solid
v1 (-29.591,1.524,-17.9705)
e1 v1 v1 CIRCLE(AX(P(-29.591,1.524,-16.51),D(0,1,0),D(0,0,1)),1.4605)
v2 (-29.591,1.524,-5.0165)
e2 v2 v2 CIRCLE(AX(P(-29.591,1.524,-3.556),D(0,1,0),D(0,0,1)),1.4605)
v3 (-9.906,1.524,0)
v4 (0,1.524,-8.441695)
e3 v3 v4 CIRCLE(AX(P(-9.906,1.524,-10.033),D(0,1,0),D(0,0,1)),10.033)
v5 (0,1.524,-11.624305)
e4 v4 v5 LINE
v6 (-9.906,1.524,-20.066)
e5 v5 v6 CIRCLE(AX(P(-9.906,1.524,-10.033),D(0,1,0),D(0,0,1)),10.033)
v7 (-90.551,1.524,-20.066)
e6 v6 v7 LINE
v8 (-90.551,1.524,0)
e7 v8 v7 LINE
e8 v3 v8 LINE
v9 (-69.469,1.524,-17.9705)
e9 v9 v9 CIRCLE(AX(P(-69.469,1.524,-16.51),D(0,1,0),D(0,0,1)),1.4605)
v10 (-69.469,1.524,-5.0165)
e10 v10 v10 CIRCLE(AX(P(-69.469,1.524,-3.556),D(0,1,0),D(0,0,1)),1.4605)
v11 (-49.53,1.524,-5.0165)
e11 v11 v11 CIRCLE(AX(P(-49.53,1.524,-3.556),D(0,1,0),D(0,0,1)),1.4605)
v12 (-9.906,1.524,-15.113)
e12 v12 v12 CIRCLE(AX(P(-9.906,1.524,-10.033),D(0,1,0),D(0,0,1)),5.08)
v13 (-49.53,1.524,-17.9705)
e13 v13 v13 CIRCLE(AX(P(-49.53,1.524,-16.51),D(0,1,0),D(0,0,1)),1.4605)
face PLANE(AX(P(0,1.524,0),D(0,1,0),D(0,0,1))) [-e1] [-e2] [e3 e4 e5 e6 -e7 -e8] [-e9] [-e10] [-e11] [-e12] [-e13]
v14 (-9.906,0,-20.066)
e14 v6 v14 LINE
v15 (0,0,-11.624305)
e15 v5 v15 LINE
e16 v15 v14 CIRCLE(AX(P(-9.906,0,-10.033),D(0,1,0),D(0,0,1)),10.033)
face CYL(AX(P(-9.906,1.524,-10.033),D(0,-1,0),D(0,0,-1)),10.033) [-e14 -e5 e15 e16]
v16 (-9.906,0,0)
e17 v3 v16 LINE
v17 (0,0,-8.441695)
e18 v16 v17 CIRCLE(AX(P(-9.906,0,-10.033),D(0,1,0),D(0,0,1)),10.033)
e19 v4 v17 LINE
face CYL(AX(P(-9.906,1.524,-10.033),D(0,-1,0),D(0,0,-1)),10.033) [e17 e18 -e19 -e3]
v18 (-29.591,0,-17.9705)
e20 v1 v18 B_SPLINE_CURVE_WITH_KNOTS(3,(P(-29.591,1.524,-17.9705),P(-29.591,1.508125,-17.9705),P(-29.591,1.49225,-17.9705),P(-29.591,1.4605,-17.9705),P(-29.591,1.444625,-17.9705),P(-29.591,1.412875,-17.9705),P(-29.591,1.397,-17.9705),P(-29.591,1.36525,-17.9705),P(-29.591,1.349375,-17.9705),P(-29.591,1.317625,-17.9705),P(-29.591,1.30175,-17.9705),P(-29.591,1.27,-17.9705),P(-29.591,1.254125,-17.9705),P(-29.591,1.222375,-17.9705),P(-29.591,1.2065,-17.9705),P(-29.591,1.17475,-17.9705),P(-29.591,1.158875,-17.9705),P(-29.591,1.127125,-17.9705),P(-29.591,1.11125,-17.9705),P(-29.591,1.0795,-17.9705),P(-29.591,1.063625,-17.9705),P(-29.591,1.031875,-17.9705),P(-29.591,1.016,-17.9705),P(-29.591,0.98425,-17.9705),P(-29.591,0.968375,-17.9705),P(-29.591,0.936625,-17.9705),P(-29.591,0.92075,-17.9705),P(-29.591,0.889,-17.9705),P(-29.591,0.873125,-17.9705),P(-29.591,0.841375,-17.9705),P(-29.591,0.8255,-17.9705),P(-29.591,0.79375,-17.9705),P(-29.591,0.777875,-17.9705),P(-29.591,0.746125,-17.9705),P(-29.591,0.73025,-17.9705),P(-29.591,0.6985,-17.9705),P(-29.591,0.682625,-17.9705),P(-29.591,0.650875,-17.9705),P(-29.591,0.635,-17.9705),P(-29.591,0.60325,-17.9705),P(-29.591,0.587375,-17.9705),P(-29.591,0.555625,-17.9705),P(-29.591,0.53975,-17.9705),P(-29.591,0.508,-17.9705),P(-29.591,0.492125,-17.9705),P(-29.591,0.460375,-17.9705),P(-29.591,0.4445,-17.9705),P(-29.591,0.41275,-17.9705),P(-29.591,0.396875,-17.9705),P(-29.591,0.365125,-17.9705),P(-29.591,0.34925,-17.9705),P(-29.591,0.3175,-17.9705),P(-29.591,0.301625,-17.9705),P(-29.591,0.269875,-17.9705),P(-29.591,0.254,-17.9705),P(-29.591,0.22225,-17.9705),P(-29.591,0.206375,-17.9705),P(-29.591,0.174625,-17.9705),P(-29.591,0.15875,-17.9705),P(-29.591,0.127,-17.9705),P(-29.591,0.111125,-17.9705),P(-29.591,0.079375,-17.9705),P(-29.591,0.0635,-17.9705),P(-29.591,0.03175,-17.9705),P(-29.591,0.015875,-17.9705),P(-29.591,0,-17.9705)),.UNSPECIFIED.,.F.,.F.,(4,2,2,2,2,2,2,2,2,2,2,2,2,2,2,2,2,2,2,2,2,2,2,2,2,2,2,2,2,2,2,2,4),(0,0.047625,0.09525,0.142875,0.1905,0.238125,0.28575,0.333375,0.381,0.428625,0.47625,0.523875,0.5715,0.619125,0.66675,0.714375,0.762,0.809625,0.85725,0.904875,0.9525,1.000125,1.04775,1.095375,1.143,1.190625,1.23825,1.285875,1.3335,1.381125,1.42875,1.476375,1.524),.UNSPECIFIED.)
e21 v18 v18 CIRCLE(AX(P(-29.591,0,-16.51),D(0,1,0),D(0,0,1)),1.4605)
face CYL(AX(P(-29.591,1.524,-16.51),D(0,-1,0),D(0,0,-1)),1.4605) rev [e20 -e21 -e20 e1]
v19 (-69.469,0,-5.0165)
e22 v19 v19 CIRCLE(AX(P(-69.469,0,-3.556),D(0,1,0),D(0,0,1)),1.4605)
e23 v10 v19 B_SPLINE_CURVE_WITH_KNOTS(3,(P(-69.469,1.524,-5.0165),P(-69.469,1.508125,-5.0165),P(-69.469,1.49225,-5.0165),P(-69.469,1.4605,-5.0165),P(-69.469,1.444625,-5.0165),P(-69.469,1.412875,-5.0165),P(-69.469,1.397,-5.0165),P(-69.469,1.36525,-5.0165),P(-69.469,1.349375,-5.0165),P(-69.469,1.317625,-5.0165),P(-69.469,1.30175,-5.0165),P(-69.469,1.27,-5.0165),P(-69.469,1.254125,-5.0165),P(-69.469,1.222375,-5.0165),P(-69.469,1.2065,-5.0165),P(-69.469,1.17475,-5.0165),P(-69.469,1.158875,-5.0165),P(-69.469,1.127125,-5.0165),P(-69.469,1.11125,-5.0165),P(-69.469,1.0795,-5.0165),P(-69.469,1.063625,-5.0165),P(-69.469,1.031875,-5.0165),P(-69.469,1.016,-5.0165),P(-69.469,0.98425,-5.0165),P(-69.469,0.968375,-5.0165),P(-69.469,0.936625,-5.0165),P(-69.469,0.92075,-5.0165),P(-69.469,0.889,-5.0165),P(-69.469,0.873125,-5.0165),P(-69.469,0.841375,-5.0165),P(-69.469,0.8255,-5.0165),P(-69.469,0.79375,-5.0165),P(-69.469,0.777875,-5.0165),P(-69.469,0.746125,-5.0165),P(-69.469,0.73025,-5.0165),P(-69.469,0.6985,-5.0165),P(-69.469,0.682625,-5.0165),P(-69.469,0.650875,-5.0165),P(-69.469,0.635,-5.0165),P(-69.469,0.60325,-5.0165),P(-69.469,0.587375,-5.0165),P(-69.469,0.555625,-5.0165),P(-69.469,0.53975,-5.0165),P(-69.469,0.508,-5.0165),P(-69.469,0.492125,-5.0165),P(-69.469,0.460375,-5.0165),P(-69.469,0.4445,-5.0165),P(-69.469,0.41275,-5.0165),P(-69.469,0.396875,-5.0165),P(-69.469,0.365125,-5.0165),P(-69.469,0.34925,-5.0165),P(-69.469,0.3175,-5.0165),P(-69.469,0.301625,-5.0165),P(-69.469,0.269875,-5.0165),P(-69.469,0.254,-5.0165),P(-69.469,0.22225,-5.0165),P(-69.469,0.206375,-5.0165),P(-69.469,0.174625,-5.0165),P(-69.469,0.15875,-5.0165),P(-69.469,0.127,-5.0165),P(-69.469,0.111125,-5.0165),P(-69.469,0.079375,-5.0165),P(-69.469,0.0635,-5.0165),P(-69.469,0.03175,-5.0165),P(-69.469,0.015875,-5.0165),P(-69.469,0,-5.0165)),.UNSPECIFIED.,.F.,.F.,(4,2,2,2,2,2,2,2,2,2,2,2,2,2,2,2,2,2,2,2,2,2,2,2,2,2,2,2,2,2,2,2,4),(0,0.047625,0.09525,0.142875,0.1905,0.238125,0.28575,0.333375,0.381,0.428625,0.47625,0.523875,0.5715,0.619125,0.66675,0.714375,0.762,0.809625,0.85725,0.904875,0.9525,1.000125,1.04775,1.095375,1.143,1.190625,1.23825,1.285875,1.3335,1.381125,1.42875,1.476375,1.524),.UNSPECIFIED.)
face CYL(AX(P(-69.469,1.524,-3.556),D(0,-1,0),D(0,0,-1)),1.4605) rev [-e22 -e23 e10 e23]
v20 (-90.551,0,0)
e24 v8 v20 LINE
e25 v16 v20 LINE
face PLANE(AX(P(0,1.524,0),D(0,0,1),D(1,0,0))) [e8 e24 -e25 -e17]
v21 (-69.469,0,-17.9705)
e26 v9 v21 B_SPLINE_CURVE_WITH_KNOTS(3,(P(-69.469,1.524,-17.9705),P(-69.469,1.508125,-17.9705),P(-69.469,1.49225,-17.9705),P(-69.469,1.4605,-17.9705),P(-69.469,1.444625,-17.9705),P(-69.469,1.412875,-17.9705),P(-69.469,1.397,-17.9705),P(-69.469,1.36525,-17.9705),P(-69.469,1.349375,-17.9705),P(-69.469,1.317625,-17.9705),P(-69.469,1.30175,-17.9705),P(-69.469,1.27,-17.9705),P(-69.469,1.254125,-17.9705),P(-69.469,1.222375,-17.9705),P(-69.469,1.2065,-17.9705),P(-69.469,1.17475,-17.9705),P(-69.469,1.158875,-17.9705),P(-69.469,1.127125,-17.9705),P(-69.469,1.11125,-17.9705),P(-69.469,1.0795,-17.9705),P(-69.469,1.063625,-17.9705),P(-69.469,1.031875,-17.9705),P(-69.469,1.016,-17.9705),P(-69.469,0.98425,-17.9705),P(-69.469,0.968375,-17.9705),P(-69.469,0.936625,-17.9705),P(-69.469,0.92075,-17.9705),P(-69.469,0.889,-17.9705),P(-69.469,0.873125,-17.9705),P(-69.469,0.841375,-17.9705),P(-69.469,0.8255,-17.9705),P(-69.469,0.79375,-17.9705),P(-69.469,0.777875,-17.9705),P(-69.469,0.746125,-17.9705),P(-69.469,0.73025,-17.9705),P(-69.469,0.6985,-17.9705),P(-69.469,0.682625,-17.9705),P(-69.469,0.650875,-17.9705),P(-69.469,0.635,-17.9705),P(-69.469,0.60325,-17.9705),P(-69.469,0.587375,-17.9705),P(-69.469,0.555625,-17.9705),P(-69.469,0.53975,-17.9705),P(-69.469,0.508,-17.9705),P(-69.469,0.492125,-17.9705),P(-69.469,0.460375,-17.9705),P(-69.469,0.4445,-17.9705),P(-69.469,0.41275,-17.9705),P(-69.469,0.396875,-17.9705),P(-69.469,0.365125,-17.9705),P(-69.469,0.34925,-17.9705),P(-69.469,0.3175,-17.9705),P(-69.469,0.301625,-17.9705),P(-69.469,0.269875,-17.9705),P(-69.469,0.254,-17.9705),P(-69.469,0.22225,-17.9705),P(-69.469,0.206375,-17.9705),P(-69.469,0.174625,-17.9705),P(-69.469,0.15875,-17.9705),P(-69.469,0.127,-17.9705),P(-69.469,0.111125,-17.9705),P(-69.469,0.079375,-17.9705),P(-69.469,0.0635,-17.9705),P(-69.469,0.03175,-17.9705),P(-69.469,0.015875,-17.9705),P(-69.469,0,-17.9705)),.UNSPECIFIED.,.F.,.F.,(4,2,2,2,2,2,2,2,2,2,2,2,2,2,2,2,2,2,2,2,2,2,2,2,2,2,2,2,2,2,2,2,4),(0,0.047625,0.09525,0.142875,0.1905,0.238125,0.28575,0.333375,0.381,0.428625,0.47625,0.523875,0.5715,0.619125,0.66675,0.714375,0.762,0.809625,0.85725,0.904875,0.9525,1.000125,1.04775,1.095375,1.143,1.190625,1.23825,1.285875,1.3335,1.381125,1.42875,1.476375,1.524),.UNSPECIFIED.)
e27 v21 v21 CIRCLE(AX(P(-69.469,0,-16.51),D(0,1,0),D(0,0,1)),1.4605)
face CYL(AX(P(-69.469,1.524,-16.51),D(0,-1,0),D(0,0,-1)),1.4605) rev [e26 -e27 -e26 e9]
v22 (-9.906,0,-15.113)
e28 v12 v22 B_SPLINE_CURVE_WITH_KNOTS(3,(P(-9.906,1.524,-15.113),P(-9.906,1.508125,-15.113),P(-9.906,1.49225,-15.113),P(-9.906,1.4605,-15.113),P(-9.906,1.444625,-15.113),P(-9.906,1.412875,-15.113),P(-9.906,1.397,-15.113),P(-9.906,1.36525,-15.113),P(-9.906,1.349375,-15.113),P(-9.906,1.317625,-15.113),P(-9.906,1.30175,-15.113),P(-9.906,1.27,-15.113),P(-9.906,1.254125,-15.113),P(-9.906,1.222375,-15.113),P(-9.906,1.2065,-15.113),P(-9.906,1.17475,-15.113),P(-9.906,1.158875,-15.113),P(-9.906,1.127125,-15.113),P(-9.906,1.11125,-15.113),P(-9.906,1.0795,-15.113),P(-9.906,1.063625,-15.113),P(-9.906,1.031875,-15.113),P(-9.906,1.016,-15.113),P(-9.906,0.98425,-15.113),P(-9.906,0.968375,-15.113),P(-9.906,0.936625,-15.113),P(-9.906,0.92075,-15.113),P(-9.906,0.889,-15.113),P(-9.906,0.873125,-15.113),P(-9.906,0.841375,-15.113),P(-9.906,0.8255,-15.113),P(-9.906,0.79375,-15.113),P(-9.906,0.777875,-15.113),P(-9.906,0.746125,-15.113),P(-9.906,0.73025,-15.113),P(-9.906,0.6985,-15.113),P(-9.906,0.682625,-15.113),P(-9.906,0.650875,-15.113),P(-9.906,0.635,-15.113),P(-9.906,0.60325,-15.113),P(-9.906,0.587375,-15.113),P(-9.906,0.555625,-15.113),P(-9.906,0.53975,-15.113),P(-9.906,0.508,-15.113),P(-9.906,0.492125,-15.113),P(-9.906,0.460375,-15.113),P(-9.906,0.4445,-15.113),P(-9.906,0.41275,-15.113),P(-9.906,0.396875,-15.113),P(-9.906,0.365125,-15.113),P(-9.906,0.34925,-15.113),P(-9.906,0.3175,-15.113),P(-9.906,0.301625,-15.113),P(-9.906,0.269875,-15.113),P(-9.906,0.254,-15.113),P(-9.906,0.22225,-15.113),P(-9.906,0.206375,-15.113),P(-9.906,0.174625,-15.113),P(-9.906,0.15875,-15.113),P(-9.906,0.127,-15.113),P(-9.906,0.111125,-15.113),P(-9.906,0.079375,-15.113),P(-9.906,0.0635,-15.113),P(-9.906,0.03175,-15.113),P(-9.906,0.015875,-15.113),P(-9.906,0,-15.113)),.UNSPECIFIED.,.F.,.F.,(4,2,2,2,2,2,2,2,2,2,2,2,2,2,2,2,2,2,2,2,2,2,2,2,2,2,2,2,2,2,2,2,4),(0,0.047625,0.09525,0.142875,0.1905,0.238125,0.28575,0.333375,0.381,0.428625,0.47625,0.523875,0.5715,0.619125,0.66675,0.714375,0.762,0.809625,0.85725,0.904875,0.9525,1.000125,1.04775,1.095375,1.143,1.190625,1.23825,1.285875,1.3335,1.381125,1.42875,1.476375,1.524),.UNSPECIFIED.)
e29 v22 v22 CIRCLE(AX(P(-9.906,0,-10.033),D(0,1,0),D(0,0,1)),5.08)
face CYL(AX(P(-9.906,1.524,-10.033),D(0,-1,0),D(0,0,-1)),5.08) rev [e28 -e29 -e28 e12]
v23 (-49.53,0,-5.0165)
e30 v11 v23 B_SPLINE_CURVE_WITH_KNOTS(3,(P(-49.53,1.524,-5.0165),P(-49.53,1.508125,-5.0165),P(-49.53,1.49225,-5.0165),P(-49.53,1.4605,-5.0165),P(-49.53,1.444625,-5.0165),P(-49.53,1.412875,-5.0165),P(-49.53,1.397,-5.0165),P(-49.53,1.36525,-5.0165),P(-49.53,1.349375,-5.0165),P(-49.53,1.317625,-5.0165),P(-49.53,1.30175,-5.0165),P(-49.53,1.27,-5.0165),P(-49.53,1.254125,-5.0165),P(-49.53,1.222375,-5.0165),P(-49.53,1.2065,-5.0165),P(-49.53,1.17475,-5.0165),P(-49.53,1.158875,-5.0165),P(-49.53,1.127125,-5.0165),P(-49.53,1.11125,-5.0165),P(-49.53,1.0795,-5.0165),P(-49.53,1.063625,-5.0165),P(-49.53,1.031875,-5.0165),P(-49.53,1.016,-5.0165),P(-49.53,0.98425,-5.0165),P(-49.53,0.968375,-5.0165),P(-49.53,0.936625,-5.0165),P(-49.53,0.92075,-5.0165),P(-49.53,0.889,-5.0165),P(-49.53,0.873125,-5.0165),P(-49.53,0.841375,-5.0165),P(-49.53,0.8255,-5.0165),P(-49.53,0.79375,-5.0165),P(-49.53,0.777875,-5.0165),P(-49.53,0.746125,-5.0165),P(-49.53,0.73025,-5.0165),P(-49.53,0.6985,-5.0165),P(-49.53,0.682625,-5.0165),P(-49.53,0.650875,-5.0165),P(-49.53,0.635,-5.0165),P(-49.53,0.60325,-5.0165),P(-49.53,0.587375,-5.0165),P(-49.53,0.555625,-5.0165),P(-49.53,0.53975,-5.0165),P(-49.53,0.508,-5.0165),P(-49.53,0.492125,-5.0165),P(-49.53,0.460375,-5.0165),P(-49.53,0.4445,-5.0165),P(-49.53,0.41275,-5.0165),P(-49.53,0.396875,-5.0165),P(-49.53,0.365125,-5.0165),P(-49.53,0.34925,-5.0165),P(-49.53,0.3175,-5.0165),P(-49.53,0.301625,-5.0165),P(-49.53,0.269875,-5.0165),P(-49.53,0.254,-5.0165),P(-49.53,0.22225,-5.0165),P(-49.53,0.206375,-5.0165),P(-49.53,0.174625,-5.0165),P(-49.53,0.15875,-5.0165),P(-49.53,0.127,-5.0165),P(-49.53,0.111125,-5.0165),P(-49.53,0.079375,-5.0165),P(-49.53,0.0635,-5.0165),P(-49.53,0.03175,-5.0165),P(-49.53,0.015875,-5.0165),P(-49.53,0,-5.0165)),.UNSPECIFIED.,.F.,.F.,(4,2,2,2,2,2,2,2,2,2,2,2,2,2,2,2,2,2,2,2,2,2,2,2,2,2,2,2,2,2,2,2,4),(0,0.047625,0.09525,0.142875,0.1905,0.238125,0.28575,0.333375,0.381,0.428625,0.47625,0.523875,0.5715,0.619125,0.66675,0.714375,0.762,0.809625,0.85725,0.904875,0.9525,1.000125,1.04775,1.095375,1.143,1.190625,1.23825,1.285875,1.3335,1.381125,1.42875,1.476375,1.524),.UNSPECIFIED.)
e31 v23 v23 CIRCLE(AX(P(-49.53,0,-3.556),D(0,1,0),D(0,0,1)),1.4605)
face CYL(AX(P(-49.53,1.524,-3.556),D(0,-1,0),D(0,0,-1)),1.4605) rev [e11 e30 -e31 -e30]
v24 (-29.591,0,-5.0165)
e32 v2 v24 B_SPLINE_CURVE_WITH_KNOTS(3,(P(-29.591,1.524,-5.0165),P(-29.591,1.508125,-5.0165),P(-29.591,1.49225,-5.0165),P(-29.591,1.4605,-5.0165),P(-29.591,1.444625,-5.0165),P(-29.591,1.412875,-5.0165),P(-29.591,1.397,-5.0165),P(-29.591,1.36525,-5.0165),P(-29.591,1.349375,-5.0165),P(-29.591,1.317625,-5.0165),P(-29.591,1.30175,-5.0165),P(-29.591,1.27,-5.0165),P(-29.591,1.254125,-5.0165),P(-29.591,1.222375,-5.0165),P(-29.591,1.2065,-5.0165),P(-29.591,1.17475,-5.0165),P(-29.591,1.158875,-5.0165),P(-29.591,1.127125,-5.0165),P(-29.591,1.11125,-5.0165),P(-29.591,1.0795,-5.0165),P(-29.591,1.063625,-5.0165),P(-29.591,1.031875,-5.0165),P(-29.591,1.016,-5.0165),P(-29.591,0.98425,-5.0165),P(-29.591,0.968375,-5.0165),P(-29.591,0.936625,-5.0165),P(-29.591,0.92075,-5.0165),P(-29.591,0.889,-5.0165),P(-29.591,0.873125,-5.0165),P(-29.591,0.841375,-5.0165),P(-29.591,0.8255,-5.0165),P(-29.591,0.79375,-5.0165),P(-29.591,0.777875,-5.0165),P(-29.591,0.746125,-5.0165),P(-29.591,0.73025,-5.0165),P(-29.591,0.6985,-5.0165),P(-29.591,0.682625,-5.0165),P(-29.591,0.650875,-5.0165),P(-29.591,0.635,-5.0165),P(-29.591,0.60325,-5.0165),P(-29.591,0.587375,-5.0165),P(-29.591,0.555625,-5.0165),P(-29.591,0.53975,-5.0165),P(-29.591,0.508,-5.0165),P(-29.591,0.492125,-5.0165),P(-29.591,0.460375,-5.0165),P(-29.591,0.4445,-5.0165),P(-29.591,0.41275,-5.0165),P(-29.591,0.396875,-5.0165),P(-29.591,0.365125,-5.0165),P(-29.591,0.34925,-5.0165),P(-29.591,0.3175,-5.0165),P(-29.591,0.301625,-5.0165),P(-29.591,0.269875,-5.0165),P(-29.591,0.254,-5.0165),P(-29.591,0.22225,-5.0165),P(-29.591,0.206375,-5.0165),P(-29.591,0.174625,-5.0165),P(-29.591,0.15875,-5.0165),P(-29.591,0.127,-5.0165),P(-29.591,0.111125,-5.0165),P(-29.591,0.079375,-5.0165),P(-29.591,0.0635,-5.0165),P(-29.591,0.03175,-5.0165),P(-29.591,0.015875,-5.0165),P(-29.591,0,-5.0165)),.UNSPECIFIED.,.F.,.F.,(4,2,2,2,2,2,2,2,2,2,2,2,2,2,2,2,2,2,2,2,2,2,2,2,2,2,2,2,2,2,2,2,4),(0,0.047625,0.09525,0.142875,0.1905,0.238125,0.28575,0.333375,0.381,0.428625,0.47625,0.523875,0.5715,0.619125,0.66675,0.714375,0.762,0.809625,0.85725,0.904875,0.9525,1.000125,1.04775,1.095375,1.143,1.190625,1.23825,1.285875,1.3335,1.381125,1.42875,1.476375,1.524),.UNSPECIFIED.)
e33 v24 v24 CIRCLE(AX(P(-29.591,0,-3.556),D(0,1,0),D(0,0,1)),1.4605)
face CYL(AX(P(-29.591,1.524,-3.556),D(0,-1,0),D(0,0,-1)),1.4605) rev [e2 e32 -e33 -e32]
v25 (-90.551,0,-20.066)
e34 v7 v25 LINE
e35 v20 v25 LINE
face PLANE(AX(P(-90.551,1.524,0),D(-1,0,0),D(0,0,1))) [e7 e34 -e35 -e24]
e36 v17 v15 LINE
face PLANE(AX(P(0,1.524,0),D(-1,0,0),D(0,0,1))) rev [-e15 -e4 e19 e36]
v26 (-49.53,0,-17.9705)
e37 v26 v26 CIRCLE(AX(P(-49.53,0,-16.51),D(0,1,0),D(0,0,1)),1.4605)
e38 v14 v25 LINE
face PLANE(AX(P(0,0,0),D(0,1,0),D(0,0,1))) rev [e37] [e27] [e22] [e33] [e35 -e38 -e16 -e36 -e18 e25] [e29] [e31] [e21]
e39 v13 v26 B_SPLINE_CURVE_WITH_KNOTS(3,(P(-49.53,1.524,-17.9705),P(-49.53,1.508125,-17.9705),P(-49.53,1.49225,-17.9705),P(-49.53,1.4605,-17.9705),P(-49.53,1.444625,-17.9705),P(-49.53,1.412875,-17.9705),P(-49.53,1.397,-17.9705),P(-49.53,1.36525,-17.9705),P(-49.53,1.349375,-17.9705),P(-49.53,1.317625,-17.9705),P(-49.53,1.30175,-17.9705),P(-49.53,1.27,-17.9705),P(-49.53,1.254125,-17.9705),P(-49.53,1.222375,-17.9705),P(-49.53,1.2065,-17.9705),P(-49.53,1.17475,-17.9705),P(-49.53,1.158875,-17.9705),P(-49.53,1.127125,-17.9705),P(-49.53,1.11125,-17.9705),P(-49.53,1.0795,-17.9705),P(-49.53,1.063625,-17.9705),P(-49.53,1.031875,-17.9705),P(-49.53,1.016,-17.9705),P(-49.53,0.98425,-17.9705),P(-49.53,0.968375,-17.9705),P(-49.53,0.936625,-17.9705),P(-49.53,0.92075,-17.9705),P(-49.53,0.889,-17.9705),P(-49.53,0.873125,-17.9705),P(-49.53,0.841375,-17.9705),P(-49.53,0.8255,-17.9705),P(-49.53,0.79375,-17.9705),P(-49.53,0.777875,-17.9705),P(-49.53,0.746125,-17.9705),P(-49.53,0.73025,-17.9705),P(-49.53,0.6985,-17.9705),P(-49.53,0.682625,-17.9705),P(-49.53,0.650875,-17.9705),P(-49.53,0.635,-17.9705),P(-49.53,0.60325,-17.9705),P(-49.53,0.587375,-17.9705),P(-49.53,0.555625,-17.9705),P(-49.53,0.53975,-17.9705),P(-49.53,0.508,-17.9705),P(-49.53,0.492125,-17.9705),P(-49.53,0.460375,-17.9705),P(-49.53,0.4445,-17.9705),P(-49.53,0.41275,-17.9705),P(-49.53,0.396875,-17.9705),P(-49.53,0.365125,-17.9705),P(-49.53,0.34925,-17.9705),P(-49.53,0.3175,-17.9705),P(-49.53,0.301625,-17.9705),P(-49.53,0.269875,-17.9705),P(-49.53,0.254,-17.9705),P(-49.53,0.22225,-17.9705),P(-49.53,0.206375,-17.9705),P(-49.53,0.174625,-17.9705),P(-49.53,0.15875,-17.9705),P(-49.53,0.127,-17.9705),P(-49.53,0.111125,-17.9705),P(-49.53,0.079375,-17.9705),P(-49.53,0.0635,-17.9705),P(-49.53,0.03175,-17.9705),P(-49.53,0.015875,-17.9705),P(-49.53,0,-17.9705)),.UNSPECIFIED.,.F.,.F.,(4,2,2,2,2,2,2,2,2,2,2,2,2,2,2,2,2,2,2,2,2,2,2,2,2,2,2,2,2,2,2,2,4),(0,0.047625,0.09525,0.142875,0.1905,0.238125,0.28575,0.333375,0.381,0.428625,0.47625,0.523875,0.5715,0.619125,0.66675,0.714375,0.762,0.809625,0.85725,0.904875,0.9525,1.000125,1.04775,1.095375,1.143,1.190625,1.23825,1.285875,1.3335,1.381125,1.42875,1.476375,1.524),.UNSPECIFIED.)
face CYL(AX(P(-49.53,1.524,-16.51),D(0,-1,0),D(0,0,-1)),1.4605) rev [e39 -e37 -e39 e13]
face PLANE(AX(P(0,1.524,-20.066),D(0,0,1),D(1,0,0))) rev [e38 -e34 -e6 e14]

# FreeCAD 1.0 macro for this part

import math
import FreeCAD as App
import Part
import Sketcher
Q = App.Units.Quantity

doc = App.newDocument("Part")
body = doc.addObject("PartDesign::Body", "Body")

sketch1 = body.newObject("Sketcher::SketchObject", "Sketch")
sketch1.AttachmentSupport = (doc.getObject("XZ_Plane"), [""])
sketch1.MapMode = "FlatFace"
sketch1.addGeometry([
    Part.LineSegment(App.Vector(-90.551, 0, 0), App.Vector(-9.906, 0, 0)),
    Part.ArcOfCircle(Part.Circle(App.Vector(-9.906, -10.033, 0), App.Vector(0, 0, 1), 10.033), math.radians(9.126059), math.radians(90)),
    Part.LineSegment(App.Vector(0, -8.441695, 0), App.Vector(0, -11.624305, 0)),
    Part.ArcOfCircle(Part.Circle(App.Vector(-9.906, -10.033, 0), App.Vector(0, 0, 1), 10.033), math.radians(-90), math.radians(-9.126059)),
    Part.LineSegment(App.Vector(-9.906, -20.066, 0), App.Vector(-90.551, -20.066, 0)),
    Part.LineSegment(App.Vector(-90.551, -20.066, 0), App.Vector(-90.551, 0, 0)),
    Part.Circle(App.Vector(-69.469, -3.556, 0), App.Vector(0, 0, 1), 1.4605),
    Part.Circle(App.Vector(-49.53, -3.556, 0), App.Vector(0, 0, 1), 1.4605),
    Part.Circle(App.Vector(-29.591, -3.556, 0), App.Vector(0, 0, 1), 1.4605),
    Part.Circle(App.Vector(-9.906, -10.033, 0), App.Vector(0, 0, 1), 5.08),
    Part.Circle(App.Vector(-69.469, -16.51, 0), App.Vector(0, 0, 1), 1.4605),
    Part.Circle(App.Vector(-49.53, -16.51, 0), App.Vector(0, 0, 1), 1.4605),
    Part.Circle(App.Vector(-29.591, -16.51, 0), App.Vector(0, 0, 1), 1.4605),
], False)
sketch1.addConstraint([
    Sketcher.Constraint("Tangent", 0, 2, 1, 2),
    Sketcher.Constraint("Coincident", 1, 1, 2, 1),
    Sketcher.Constraint("Coincident", 2, 2, 3, 2),
    Sketcher.Constraint("Tangent", 3, 1, 4, 1),
    Sketcher.Constraint("Coincident", 4, 2, 5, 1),
    Sketcher.Constraint("Coincident", 5, 2, 0, 1),
    Sketcher.Constraint("Horizontal", 0),
    Sketcher.Constraint("Vertical", 2),
    Sketcher.Constraint("Horizontal", 4),
    Sketcher.Constraint("Vertical", 5),
    Sketcher.Constraint("Coincident", 3, 3, 1, 3),
    Sketcher.Constraint("Coincident", 9, 3, 1, 3),
    Sketcher.Constraint("Equal", 1, 3),
    Sketcher.Constraint("Equal", 6, 7),
    Sketcher.Constraint("Equal", 7, 8),
    Sketcher.Constraint("Equal", 8, 10),
    Sketcher.Constraint("Equal", 10, 11),
    Sketcher.Constraint("Equal", 11, 12),
    Sketcher.Constraint("PointOnObject", 0, 2, -1),
    Sketcher.Constraint("PointOnObject", 1, 1, -2),
    Sketcher.Constraint("Horizontal", 6, 3, 7, 3),
    Sketcher.Constraint("Horizontal", 7, 3, 8, 3),
    Sketcher.Constraint("Horizontal", 10, 3, 11, 3),
    Sketcher.Constraint("Horizontal", 11, 3, 12, 3),
    Sketcher.Constraint("Vertical", 6, 3, 10, 3),
    Sketcher.Constraint("Vertical", 7, 3, 11, 3),
    Sketcher.Constraint("Vertical", 8, 3, 12, 3),
    Sketcher.Constraint("Diameter", 9, Q("0.4 in")),
    Sketcher.Constraint("Diameter", 6, Q("0.115 in")),
    Sketcher.Constraint("Radius", 1, Q("0.395 in")),
    Sketcher.Constraint("DistanceX", 4, 2, 12, 3, Q("2.4 in")),
    Sketcher.Constraint("DistanceX", 0, 1, 0, 2, Q("3.175 in")),
    Sketcher.Constraint("DistanceX", 1, 3, -1, 1, Q("0.39 in")),
    Sketcher.Constraint("DistanceY", 6, 3, -1, 1, Q("0.14 in")),
    Sketcher.Constraint("DistanceX", 7, 3, -1, 1, Q("1.95 in")),
    Sketcher.Constraint("DistanceY", 10, 3, -1, 1, Q("0.65 in")),
    Sketcher.Constraint("DistanceX", 6, 3, 8, 3, Q("1.57 in")),
])
pad1 = body.newObject("PartDesign::Pad", "Pad")
pad1.Profile = sketch1
pad1.Length = Q("0.06 in")
pad1.Reversed = True

doc.recompute()
